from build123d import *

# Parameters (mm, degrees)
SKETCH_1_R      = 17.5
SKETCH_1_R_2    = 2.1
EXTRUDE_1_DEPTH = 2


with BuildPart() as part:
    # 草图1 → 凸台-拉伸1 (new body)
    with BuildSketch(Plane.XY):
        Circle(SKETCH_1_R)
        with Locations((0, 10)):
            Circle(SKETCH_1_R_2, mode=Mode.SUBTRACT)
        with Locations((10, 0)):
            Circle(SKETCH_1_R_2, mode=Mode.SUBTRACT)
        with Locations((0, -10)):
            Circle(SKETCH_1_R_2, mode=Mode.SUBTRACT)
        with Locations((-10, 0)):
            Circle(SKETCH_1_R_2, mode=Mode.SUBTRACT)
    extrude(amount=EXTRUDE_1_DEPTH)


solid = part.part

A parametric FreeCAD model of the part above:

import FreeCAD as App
import Part
import Sketcher

V = App.Vector

doc = App.newDocument("Part")
body = doc.addObject("PartDesign::Body", "Body")

# Sketch on XY plane
sketch1 = body.newObject("Sketcher::SketchObject", "Sketch")
sketch1.AttachmentSupport = (doc.getObject("XY_Plane"), [""])
sketch1.MapMode = "FlatFace"
sketch1.addGeometry(Part.Circle(V(0, 0, 0), V(0, 0, 1), 17.5), False)
sketch1.addGeometry(Part.Circle(V(0, -10, 0), V(0, 0, 1), 2.1), False)
sketch1.addGeometry(Part.Circle(V(-10, 0, 0), V(0, 0, 1), 2.1), False)
sketch1.addGeometry(Part.Circle(V(10, 0, 0), V(0, 0, 1), 2.1), False)
sketch1.addGeometry(Part.Circle(V(0, 10, 0), V(0, 0, 1), 2.1), False)
sketch1.addConstraint(Sketcher.Constraint("Coincident", 0, 3, -1, 1))
sketch1.addConstraint(Sketcher.Constraint("Equal", 1, 2))
sketch1.addConstraint(Sketcher.Constraint("Equal", 2, 3))
sketch1.addConstraint(Sketcher.Constraint("Equal", 3, 4))
sketch1.addConstraint(Sketcher.Constraint("Symmetric", 2, 3, 3, 3, -1, 1))
sketch1.addConstraint(Sketcher.Constraint("Symmetric", 1, 3, 4, 3, -1, 1))
sketch1.addConstraint(Sketcher.Constraint("PointOnObject", 1, 3, -2))
sketch1.addConstraint(Sketcher.Constraint("PointOnObject", 2, 3, -1))
sketch1.addConstraint(Sketcher.Constraint("Diameter", 0, 35.0))
sketch1.addConstraint(Sketcher.Constraint("Diameter", 1, 4.2))
sketch1.addConstraint(Sketcher.Constraint("DistanceY", 1, 3, -1, 1, 10.0))
sketch1.addConstraint(Sketcher.Constraint("DistanceX", 2, 3, -1, 1, 10.0))
pad1 = body.newObject("PartDesign::Pad", "Pad")
pad1.Profile = sketch1
pad1.Length = 2

doc.recompute()
